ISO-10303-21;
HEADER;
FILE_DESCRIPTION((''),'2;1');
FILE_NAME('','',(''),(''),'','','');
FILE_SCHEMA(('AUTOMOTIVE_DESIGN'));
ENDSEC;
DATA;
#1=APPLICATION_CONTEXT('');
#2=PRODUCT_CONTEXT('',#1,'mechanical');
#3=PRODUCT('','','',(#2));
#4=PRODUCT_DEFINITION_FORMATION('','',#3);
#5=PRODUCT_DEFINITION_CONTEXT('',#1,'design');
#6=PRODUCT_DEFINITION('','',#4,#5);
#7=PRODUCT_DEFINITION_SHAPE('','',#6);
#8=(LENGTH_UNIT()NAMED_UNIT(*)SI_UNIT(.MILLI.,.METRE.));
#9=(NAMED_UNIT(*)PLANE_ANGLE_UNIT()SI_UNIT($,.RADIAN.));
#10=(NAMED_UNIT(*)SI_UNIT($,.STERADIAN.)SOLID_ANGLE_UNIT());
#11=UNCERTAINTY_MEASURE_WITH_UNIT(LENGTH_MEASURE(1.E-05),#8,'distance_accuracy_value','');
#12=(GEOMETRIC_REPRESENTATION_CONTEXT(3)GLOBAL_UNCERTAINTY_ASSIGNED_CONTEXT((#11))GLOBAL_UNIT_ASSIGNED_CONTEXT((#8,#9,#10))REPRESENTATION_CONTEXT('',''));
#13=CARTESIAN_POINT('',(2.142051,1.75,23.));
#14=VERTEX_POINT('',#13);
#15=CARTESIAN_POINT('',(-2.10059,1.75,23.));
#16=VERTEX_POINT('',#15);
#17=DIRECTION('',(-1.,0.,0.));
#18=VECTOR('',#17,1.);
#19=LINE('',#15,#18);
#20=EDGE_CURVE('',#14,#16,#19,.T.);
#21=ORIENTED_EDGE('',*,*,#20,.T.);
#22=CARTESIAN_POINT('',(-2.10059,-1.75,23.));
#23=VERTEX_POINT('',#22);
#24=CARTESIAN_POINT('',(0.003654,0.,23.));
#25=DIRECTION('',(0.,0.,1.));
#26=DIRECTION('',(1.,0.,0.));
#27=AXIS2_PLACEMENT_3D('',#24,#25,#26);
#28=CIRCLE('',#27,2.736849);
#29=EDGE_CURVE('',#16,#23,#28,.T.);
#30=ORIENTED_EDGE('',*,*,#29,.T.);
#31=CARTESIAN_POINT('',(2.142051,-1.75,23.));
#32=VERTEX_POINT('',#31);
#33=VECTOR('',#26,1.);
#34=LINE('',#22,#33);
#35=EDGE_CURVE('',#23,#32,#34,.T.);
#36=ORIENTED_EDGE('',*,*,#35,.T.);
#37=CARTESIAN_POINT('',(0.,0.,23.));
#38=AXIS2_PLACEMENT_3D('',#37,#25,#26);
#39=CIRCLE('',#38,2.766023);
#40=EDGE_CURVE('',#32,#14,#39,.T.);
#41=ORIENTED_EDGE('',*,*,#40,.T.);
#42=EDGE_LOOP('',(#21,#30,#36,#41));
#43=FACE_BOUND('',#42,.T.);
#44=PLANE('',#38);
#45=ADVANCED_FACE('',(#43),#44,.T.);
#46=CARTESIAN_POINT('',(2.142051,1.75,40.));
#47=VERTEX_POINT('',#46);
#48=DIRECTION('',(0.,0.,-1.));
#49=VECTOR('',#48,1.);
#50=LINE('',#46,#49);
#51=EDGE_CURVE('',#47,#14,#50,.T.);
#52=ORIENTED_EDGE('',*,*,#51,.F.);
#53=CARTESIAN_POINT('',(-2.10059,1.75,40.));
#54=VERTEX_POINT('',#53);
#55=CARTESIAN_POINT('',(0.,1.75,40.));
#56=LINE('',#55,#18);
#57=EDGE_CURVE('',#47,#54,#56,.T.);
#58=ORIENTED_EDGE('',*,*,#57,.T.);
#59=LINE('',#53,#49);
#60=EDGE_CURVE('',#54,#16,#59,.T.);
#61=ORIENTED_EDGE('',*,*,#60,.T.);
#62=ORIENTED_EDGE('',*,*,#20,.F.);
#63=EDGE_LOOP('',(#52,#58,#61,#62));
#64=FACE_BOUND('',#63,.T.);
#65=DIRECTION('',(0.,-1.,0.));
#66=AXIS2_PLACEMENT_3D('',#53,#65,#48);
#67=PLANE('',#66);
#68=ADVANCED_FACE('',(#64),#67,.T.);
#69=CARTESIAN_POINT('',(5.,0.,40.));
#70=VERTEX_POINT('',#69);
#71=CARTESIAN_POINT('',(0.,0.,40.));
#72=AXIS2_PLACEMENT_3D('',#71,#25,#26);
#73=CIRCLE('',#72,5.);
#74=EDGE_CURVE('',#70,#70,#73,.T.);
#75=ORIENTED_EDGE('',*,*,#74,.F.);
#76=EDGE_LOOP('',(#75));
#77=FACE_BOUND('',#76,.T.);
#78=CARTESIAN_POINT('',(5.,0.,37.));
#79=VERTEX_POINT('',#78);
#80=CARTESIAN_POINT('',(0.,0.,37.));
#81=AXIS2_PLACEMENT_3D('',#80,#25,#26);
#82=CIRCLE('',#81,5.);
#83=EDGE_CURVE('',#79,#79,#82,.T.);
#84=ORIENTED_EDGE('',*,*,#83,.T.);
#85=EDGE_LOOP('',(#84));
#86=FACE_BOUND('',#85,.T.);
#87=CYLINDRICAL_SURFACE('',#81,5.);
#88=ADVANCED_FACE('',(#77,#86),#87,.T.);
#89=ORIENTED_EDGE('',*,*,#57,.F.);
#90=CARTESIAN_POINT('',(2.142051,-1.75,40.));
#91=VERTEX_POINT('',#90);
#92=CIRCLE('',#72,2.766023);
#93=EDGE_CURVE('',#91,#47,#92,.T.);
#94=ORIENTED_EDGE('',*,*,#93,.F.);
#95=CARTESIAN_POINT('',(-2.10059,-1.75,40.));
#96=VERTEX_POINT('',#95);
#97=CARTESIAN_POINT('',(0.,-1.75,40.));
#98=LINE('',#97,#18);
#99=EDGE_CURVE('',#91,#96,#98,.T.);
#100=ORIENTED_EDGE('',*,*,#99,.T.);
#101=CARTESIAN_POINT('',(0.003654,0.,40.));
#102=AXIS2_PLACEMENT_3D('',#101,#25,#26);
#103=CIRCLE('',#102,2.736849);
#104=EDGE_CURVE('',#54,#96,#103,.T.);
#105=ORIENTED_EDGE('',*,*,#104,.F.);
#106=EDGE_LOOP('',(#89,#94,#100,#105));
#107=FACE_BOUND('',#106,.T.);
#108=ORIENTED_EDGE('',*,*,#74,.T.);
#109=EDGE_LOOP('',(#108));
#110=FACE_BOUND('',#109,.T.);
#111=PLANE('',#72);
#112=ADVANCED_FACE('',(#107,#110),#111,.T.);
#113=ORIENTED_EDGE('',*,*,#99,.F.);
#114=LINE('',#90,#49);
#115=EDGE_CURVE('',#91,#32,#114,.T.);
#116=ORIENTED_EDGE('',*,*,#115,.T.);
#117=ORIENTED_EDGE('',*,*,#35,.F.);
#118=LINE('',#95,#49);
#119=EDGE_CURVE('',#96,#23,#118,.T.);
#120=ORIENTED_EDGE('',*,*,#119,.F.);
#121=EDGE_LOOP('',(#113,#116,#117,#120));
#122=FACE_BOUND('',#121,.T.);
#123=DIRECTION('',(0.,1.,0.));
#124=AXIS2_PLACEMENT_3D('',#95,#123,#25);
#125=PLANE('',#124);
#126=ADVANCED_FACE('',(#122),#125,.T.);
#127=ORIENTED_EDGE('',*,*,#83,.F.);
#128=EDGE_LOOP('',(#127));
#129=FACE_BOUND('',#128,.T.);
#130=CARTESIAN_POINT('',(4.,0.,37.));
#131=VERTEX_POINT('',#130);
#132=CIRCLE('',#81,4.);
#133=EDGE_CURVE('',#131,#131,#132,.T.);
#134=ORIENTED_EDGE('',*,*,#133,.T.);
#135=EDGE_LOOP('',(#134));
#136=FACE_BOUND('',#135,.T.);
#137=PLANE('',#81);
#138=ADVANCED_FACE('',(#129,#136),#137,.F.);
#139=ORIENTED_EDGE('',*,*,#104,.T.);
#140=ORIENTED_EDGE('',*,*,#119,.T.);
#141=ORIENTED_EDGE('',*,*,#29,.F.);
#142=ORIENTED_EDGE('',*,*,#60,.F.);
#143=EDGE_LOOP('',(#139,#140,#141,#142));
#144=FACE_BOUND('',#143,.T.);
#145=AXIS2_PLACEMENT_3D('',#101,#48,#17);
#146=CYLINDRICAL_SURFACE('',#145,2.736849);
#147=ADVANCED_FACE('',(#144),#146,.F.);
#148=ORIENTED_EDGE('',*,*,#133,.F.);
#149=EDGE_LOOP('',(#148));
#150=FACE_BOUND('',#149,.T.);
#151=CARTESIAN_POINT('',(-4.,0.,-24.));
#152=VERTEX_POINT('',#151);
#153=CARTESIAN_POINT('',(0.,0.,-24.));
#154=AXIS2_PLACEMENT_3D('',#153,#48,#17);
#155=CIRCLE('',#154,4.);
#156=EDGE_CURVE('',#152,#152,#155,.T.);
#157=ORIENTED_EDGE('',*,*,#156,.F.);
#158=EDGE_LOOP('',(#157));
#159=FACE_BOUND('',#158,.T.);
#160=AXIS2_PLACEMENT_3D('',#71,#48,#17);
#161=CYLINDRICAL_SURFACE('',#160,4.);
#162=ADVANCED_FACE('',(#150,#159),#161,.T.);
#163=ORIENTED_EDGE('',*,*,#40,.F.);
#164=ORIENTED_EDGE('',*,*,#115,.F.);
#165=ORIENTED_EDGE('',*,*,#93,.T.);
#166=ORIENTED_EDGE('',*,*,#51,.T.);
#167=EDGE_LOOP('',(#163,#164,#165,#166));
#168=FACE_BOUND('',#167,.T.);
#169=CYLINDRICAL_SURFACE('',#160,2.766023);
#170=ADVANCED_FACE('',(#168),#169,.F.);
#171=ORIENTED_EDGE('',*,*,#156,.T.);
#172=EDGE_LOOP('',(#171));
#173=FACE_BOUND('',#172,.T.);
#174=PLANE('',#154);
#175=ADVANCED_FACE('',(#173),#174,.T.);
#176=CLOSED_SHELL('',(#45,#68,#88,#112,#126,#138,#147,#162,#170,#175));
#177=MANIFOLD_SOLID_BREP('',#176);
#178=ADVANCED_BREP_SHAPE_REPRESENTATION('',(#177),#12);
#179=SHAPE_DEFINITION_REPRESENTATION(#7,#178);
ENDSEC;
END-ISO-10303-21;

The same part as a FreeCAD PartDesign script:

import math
import FreeCAD as App
import Part
import Sketcher

V = App.Vector

doc = App.newDocument("Part")
body = doc.addObject("PartDesign::Body", "Body")

sketch1 = doc.addObject("Sketcher::SketchObject", "Sketch")
body.addObject(sketch1)
sketch1.AttachmentSupport = (doc.XY_Plane, [""])
sketch1.MapMode = "FlatFace"
sketch1.addGeometry(Part.Circle(V(0, 0, 0), V(0, 0, 1), 4), False)
sketch1.addGeometry(Part.ArcOfCircle(Part.Circle(V(0, 0, 0), V(0, 0, 1), 2.7), math.radians(140), math.radians(220)), False)
sketch1.addGeometry(Part.LineSegment(V(-2.1, 1.8, 0), V(2.1, 1.8, 0)), False)
sketch1.addGeometry(Part.ArcOfCircle(Part.Circle(V(0, 0, 0), V(0, 0, 1), 2.8), math.radians(-39), math.radians(39)), False)
sketch1.addGeometry(Part.LineSegment(V(2.1, -1.8, 0), V(-2.1, -1.8, 0)), False)
sketch1.addConstraint(Sketcher.Constraint("Coincident", 1, 1, 2, 1))
sketch1.addConstraint(Sketcher.Constraint("Coincident", 2, 2, 3, 2))
sketch1.addConstraint(Sketcher.Constraint("Coincident", 3, 1, 4, 1))
sketch1.addConstraint(Sketcher.Constraint("Coincident", 4, 2, 1, 2))
sketch1.addConstraint(Sketcher.Constraint("Horizontal", 2))
sketch1.addConstraint(Sketcher.Constraint("Horizontal", 4))
sketch1.addConstraint(Sketcher.Constraint("Coincident", 0, 3, -1, 1))
sketch1.addConstraint(Sketcher.Constraint("Coincident", 3, 3, -1, 1))
sketch1.addConstraint(Sketcher.Constraint("Symmetric", 1, 1, 4, 2, -1))
sketch1.addConstraint(Sketcher.Constraint("Diameter", 0, 8.0))
sketch1.addConstraint(Sketcher.Constraint("DistanceY", 3, 1, 2, 2, 3.5))
sketch1.addConstraint(Sketcher.Constraint("Radius", 1, 2.736849))
sketch1.addConstraint(Sketcher.Constraint("Radius", 3, 2.766023))
sketch1.addConstraint(Sketcher.Constraint("DistanceX", 2, 1, 2, 2, 4.242641))
pad1 = doc.addObject("PartDesign::Pad", "Pad")
body.addObject(pad1)
pad1.Profile = sketch1
pad1.Length = 40

sketch2 = doc.addObject("Sketcher::SketchObject", "Sketch001")
body.addObject(sketch2)
sketch2.AttachmentSupport = (doc.XY_Plane, [""])
sketch2.MapMode = "FlatFace"
sketch2.AttachmentOffset = App.Placement(V(0, 0, 40), App.Rotation())
sketch2.addGeometry(Part.Circle(V(0, 0, 0), V(0, 0, 1), 5), False)
sketch2.addConstraint(Sketcher.Constraint("Coincident", 0, 3, -1, 1))
sketch2.addConstraint(Sketcher.Constraint("Diameter", 0, 10.0))
pad2 = doc.addObject("PartDesign::Pad", "Pad001")
body.addObject(pad2)
pad2.Profile = sketch2
pad2.Length = 3
pad2.Reversed = True

sketch3 = doc.addObject("Sketcher::SketchObject", "Sketch002")
body.addObject(sketch3)
sketch3.AttachmentSupport = (doc.XY_Plane, [""])
sketch3.MapMode = "FlatFace"
sketch3.addGeometry(Part.ArcOfCircle(Part.Circle(V(0, 0, 0), V(0, 0, 1), 2.7), math.radians(140), math.radians(220)), False)
sketch3.addGeometry(Part.LineSegment(V(-2.1, -1.8, 0), V(2.1, -1.8, 0)), False)
sketch3.addGeometry(Part.ArcOfCircle(Part.Circle(V(0, 0, 0), V(0, 0, 1), 2.8), math.radians(-39), math.radians(39)), False)
sketch3.addGeometry(Part.LineSegment(V(2.1, 1.8, 0), V(-2.1, 1.8, 0)), False)
sketch3.addConstraint(Sketcher.Constraint("Coincident", 0, 2, 1, 1))
sketch3.addConstraint(Sketcher.Constraint("Coincident", 1, 2, 2, 1))
sketch3.addConstraint(Sketcher.Constraint("Coincident", 2, 2, 3, 1))
sketch3.addConstraint(Sketcher.Constraint("Coincident", 3, 2, 0, 1))
sketch3.addConstraint(Sketcher.Constraint("Horizontal", 1))
sketch3.addConstraint(Sketcher.Constraint("Horizontal", 3))
sketch3.addConstraint(Sketcher.Constraint("Coincident", 2, 3, -1, 1))
sketch3.addConstraint(Sketcher.Constraint("Symmetric", 0, 2, 3, 2, -1))
sketch3.addConstraint(Sketcher.Constraint("DistanceY", 1, 2, 2, 2, 3.5))
sketch3.addConstraint(Sketcher.Constraint("Radius", 0, 2.736849))
sketch3.addConstraint(Sketcher.Constraint("Radius", 2, 2.766023))
sketch3.addConstraint(Sketcher.Constraint("DistanceX", 1, 1, 1, 2, 4.242641))
pocket1 = doc.addObject("PartDesign::Pocket", "Pocket")
body.addObject(pocket1)
pocket1.Profile = sketch3
pocket1.Type = "ThroughAll"
pocket1.Midplane = True

sketch4 = doc.addObject("Sketcher::SketchObject", "Sketch003")
body.addObject(sketch4)
sketch4.AttachmentSupport = (doc.XY_Plane, [""])
sketch4.MapMode = "FlatFace"
sketch4.addGeometry(Part.Circle(V(0, 0, 0), V(0, 0, 1), 4), False)
sketch4.addConstraint(Sketcher.Constraint("Coincident", 0, 3, -1, 1))
sketch4.addConstraint(Sketcher.Constraint("Diameter", 0, 8.0))
pad3 = doc.addObject("PartDesign::Pad", "Pad002")
body.addObject(pad3)
pad3.Profile = sketch4
pad3.Length = 23

sketch5 = doc.addObject("Sketcher::SketchObject", "Sketch004")
body.addObject(sketch5)
sketch5.AttachmentSupport = (doc.XY_Plane, [""])
sketch5.MapMode = "FlatFace"
sketch5.AttachmentOffset = App.Placement(V(0, 0, -24), App.Rotation())
sketch5.addGeometry(Part.Circle(V(0, 0, 0), V(0, 0, 1), 4), False)
sketch5.addConstraint(Sketcher.Constraint("Coincident", 0, 3, -1, 1))
sketch5.addConstraint(Sketcher.Constraint("Diameter", 0, 8.0))
pad4 = doc.addObject("PartDesign::Pad", "Pad003")
body.addObject(pad4)
pad4.Profile = sketch5
pad4.Length = 24

doc.recompute()
